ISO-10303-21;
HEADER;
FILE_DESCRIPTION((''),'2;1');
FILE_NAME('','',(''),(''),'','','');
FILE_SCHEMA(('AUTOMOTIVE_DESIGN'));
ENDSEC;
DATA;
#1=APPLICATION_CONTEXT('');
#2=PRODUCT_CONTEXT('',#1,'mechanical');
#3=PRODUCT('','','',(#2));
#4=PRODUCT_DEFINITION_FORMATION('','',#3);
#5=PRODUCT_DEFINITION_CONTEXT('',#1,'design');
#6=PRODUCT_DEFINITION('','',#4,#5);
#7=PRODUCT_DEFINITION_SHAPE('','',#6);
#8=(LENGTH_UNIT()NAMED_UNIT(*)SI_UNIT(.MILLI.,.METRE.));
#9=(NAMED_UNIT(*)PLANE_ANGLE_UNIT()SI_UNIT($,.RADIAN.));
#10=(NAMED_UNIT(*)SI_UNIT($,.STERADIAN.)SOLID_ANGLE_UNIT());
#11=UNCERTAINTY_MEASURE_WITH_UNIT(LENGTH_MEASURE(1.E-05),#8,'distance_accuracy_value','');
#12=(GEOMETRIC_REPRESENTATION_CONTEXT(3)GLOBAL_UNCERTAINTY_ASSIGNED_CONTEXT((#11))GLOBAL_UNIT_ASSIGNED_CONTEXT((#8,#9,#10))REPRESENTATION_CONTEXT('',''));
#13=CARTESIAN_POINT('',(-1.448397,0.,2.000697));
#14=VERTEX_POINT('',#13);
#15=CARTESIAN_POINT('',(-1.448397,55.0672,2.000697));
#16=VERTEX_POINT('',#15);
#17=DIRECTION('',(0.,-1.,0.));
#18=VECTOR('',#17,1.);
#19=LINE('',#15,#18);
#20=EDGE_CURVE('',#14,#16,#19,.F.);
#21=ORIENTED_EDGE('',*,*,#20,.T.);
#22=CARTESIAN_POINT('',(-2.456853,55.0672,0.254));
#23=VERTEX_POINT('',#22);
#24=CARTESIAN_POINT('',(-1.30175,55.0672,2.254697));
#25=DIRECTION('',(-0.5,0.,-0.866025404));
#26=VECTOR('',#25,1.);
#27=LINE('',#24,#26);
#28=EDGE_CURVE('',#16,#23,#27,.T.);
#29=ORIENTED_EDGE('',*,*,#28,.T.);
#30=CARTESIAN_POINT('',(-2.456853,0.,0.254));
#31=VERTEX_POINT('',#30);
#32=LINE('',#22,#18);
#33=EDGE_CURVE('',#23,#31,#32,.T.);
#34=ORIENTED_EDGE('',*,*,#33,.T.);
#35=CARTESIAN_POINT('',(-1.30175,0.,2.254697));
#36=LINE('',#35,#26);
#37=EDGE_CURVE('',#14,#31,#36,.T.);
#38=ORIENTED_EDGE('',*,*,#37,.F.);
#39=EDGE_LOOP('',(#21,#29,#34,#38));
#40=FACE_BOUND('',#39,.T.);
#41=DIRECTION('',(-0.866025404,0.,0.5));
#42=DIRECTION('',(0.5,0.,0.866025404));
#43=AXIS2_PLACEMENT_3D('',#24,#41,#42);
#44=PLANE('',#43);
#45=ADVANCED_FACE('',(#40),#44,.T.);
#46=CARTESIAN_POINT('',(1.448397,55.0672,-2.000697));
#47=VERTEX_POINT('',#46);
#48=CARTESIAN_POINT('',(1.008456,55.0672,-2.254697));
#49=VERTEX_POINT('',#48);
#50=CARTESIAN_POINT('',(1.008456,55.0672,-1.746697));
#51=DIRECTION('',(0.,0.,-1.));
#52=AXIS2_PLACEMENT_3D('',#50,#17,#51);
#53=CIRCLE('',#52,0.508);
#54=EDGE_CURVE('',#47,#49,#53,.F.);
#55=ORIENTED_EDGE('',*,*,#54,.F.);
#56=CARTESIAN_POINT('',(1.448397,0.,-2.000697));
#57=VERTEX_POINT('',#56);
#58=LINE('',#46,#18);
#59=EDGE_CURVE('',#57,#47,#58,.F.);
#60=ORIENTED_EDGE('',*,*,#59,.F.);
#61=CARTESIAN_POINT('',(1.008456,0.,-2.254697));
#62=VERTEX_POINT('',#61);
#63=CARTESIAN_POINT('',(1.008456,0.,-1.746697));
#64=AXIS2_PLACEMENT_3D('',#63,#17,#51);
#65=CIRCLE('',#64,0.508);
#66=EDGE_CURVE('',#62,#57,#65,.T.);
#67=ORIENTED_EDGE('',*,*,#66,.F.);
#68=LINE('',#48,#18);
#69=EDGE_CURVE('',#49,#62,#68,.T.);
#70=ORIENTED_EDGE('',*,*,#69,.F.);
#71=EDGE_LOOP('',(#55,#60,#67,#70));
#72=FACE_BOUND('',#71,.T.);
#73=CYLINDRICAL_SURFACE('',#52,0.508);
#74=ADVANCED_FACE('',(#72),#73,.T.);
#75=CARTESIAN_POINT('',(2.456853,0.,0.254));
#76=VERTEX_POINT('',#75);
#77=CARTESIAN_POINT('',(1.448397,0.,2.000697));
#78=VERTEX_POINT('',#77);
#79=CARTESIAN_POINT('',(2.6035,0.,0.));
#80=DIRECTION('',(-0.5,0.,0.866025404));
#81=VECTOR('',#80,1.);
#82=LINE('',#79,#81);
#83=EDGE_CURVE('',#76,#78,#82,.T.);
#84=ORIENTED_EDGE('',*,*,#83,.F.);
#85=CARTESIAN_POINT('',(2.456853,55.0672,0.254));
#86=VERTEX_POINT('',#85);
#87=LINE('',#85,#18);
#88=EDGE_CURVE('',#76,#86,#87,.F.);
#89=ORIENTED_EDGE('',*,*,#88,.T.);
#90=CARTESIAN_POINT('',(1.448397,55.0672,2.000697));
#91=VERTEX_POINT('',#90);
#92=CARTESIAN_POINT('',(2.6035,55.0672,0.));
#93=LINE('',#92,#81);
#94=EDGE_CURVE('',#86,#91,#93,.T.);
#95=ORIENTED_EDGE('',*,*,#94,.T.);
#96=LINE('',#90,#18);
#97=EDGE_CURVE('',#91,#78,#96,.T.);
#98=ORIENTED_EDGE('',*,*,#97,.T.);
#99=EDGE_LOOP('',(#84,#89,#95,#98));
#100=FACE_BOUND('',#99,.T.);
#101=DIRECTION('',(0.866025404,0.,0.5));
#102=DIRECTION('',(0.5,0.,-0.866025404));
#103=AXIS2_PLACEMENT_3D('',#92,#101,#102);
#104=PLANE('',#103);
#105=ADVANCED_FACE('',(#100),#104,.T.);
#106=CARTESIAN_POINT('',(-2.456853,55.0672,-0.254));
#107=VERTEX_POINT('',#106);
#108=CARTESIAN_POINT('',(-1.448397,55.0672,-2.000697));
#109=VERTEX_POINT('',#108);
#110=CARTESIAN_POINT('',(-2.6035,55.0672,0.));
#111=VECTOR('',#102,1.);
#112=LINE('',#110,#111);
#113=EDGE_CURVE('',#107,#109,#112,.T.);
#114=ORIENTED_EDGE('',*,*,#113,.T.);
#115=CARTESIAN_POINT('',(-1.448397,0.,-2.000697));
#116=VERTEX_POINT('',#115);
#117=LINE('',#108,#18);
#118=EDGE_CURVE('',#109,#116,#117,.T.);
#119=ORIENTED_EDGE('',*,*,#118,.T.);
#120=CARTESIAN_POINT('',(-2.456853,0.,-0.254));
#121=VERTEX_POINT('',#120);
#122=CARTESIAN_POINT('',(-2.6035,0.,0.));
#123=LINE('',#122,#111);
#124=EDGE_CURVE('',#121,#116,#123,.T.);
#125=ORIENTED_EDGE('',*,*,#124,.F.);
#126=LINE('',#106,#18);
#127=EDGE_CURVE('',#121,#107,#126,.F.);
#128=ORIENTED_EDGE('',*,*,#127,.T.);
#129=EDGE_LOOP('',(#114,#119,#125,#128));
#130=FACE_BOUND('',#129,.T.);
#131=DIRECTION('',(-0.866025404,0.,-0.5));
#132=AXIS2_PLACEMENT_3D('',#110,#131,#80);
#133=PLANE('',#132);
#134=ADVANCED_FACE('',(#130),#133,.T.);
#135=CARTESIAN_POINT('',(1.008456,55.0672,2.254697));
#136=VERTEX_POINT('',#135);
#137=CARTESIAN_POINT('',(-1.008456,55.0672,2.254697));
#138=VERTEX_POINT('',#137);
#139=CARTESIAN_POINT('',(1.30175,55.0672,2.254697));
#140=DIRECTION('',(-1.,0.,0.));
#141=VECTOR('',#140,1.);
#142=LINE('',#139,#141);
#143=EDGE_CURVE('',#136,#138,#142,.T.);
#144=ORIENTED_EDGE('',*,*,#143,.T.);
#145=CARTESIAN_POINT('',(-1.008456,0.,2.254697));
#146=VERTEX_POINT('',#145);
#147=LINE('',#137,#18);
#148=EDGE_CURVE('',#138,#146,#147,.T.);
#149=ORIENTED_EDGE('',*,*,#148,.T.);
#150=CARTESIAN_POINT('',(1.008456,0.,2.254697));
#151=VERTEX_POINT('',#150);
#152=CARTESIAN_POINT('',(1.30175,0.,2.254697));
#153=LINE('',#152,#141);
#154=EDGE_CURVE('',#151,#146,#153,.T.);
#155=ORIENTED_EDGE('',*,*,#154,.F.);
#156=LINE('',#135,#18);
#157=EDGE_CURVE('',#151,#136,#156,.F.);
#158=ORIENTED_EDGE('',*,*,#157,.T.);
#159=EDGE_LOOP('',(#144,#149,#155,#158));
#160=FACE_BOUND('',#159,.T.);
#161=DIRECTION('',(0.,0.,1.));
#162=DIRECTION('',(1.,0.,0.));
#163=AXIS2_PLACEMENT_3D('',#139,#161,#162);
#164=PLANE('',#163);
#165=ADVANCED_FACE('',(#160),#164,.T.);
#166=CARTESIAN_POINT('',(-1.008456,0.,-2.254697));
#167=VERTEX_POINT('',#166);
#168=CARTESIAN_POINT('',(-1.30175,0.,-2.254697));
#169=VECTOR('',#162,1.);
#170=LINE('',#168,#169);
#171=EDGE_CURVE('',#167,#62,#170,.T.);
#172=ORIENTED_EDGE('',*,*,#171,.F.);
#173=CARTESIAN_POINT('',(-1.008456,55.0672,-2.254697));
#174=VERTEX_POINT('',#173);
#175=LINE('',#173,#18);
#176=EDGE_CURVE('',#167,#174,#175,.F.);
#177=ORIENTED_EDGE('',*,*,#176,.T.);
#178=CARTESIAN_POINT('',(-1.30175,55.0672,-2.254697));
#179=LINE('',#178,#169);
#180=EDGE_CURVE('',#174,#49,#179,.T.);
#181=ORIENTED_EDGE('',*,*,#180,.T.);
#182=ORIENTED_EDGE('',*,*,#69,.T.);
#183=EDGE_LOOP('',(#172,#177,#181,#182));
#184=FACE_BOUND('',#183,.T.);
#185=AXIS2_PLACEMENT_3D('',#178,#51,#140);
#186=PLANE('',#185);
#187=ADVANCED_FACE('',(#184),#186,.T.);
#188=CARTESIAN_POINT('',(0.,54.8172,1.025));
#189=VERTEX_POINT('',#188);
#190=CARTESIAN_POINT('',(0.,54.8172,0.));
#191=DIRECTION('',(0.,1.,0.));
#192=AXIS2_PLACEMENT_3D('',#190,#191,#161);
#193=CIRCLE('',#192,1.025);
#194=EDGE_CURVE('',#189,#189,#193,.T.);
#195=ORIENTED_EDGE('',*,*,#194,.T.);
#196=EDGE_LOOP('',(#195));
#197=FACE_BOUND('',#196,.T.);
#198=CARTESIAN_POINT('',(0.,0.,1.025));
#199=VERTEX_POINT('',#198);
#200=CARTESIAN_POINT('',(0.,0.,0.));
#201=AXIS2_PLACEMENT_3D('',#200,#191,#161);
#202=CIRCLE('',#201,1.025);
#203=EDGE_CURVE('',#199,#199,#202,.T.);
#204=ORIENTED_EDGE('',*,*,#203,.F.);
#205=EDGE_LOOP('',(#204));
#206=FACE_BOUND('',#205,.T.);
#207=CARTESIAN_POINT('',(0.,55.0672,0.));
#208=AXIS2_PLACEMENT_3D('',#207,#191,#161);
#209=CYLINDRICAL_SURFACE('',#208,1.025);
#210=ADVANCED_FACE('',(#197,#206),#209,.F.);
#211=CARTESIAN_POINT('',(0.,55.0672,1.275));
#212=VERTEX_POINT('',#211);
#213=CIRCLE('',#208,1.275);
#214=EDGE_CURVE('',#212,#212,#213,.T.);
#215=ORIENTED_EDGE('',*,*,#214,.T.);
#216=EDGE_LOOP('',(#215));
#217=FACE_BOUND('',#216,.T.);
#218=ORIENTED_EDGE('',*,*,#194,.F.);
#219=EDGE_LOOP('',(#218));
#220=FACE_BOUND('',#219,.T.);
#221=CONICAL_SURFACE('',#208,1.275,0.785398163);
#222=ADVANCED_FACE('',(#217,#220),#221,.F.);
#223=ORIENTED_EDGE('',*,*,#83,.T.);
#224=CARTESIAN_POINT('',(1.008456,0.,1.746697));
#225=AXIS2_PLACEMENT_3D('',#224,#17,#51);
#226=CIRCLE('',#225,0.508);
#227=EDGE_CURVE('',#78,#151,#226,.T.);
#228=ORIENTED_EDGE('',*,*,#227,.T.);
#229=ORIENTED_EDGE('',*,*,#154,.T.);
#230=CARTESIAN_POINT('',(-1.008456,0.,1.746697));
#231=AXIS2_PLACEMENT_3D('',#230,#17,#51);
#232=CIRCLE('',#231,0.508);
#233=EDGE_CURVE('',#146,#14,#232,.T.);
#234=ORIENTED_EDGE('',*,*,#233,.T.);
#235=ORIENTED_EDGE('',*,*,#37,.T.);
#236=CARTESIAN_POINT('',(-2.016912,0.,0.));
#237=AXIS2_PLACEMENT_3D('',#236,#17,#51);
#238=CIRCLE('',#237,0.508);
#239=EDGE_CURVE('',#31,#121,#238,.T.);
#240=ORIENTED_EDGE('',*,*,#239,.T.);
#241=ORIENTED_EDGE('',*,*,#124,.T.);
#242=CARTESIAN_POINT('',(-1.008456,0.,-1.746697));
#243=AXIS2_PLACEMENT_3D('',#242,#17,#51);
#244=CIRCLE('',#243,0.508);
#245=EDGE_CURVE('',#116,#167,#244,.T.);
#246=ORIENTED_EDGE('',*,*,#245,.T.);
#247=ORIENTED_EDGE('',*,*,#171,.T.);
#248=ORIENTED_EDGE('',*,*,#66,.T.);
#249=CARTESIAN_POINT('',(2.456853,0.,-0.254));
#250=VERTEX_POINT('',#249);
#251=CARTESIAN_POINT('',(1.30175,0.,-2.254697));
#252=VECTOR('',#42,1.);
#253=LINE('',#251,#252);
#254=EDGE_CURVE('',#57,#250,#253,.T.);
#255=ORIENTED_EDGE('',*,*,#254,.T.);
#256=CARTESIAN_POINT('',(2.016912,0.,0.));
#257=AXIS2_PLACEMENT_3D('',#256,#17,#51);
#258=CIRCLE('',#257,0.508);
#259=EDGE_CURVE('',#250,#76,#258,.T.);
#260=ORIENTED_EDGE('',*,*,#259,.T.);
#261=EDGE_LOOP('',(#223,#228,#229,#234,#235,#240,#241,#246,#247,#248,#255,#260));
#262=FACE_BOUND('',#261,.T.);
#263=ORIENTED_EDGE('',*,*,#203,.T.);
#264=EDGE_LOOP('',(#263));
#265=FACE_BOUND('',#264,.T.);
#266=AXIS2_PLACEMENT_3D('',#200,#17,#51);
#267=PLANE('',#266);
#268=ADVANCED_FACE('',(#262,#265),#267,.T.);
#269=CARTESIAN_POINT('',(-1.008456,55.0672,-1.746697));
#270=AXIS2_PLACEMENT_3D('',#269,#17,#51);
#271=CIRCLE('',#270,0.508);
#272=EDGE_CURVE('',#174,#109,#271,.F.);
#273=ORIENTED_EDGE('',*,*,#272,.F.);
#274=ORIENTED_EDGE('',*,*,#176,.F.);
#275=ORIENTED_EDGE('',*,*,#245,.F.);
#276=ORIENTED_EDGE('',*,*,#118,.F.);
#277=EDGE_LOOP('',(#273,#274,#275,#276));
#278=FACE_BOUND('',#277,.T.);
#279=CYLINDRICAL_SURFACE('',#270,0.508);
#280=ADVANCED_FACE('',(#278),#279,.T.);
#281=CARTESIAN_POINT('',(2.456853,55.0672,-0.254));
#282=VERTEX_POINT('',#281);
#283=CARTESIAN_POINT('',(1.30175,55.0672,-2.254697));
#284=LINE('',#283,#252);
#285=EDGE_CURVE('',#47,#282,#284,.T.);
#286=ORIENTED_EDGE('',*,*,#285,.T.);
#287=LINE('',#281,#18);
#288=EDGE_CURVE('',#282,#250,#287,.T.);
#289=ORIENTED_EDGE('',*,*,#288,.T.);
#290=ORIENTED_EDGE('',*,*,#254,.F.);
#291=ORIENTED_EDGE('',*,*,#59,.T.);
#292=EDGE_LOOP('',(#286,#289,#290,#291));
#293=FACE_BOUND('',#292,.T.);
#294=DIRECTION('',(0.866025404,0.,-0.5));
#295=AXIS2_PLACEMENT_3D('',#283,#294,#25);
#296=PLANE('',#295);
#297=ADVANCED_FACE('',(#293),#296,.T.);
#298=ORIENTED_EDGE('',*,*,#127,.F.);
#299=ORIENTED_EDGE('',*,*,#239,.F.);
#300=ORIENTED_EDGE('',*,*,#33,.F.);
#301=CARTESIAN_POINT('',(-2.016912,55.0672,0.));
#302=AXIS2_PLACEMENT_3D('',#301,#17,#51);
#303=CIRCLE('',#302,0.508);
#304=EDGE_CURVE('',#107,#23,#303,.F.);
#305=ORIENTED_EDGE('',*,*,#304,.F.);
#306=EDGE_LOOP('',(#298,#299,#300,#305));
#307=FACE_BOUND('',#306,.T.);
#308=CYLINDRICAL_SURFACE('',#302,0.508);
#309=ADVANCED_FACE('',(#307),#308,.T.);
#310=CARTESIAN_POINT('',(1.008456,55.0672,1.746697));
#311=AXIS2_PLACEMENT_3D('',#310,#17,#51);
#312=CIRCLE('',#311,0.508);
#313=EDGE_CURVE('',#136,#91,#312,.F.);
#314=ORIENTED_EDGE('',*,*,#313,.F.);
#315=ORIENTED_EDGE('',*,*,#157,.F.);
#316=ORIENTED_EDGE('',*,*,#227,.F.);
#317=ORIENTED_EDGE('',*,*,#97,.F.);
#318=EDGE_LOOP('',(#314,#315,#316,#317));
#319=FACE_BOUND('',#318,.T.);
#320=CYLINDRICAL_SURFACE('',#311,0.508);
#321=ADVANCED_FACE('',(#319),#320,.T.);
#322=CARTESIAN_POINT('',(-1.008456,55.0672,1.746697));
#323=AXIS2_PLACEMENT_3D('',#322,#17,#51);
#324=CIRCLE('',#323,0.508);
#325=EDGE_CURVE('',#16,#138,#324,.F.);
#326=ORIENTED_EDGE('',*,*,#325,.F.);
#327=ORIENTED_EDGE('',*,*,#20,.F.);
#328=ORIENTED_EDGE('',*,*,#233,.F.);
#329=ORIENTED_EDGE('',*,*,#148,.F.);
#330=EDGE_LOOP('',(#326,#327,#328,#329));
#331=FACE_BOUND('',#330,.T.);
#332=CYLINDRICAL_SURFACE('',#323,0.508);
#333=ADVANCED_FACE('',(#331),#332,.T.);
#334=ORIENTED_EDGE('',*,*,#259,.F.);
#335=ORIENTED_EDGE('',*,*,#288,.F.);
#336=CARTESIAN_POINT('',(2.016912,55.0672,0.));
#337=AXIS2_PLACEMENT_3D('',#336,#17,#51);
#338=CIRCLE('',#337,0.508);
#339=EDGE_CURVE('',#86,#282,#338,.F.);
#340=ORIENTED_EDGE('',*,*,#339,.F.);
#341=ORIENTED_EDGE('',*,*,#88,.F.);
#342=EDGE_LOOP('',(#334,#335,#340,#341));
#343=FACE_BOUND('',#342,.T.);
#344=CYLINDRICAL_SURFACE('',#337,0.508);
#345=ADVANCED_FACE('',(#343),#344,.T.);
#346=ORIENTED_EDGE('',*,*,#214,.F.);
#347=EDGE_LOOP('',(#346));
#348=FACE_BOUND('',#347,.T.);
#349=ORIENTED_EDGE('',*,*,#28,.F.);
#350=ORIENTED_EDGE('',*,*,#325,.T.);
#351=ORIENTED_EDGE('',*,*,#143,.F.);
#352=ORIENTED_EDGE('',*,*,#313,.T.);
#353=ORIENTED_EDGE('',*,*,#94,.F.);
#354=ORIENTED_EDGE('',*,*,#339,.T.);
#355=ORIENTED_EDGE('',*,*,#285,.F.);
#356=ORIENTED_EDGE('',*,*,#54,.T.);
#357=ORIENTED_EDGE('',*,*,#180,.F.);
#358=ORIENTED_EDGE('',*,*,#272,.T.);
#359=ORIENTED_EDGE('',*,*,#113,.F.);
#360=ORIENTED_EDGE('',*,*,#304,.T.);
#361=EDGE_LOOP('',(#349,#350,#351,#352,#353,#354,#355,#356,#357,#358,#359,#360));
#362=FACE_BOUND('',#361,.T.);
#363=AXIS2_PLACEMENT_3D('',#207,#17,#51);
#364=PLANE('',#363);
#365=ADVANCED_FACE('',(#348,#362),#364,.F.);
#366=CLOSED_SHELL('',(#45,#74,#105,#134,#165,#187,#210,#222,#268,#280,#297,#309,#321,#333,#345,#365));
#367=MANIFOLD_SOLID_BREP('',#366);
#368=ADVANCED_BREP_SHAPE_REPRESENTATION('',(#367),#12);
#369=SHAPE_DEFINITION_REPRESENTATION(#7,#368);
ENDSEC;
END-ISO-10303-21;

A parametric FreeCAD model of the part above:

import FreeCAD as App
import Part
import Sketcher
Q = App.Units.Quantity


def edges_at(feature, points):
    """Names of the edges that pass closest to the given points."""
    edges = feature.Shape.Edges
    near = lambda p: min(range(len(edges)), key=lambda i: edges[i].distToShape(Part.Vertex(*p))[0])
    return sorted({f"Edge{near(p) + 1}" for p in points})

doc = App.newDocument("Part")
body = doc.addObject("PartDesign::Body", "Body")

# Sketch on XZ plane
sketch1 = body.newObject("Sketcher::SketchObject", "Sketch")
sketch1.AttachmentSupport = (doc.getObject("XZ_Plane"), [""])
sketch1.MapMode = "FlatFace"
sketch1.addGeometry([
    Part.LineSegment(App.Vector(-1.3, -2.3, 0), App.Vector(-2.6, 0, 0)),  # 0
    Part.LineSegment(App.Vector(-2.6, 0, 0), App.Vector(-1.3, 2.3, 0)),  # 1
    Part.LineSegment(App.Vector(-1.3, 2.3, 0), App.Vector(1.3, 2.3, 0)),  # 2
    Part.LineSegment(App.Vector(1.3, 2.3, 0), App.Vector(2.6, 0, 0)),  # 3
    Part.LineSegment(App.Vector(2.6, 0, 0), App.Vector(1.3, -2.3, 0)),  # 4
    Part.LineSegment(App.Vector(1.3, -2.3, 0), App.Vector(-1.3, -2.3, 0)),  # 5
], False)
sketch1.addConstraint([
    Sketcher.Constraint("Coincident", 0, 2, 1, 1),
    Sketcher.Constraint("Coincident", 1, 2, 2, 1),
    Sketcher.Constraint("Coincident", 2, 2, 3, 1),
    Sketcher.Constraint("Coincident", 3, 2, 4, 1),
    Sketcher.Constraint("Coincident", 4, 2, 5, 1),
    Sketcher.Constraint("Coincident", 5, 2, 0, 1),
    Sketcher.Constraint("Horizontal", 2),
    Sketcher.Constraint("Horizontal", 5),
    Sketcher.Constraint("Symmetric", 0, 2, 3, 2, -1, 1),
    Sketcher.Constraint("Symmetric", 1, 2, 4, 2, -1, 1),
    Sketcher.Constraint("PointOnObject", 0, 2, -1),
    Sketcher.Constraint("Parallel", 0, 3),
    Sketcher.Constraint("Vertical", 2, 2, 4, 2),
    Sketcher.Constraint("Angle", 0, Q("120 deg")),
    Sketcher.Constraint("DistanceX", 2, 1, 2, 2, Q("0.1025 in")),
    Sketcher.Constraint("DistanceX", 0, 2, 3, 2, Q("0.205 in")),
])
pad1 = body.newObject("PartDesign::Pad", "Pad")
pad1.Profile = sketch1
pad1.Length = Q("2.168 in")
pad1.Reversed = True
doc.recompute()

fillet = body.newObject("PartDesign::Fillet", "Fillet")
fillet.Base = (pad1, edges_at(pad1, [
    (-2.603, 27.534, 0),
    (-1.302, 27.534, 2.255),
    (1.302, 27.534, 2.255),
    (2.603, 27.534, 0),
    (1.302, 27.534, -2.255),
    (-1.302, 27.534, -2.255),
]))
fillet.Radius = Q("0.02 in")

# Sketch on XZ plane
sketch2 = body.newObject("Sketcher::SketchObject", "Sketch001")
sketch2.AttachmentSupport = (doc.getObject("XZ_Plane"), [""])
sketch2.MapMode = "FlatFace"
sketch2.AttachmentOffset = App.Placement(App.Vector(0, 0, -2.168 * 25.4), App.Rotation())
sketch2.addGeometry(Part.Circle(App.Vector(0, 0, 0), App.Vector(0, 0, 1), 1), False)
sketch2.addConstraint([
    Sketcher.Constraint("Coincident", 0, 3, -1, 1),
    Sketcher.Constraint("Diameter", 0, 2.05),
])
doc.recompute()
hole = body.newObject("PartDesign::Hole", "Hole")
hole.Profile = sketch2
hole.ThreadType = "None"
hole.Diameter = 2.05
hole.DepthType = "ThroughAll"
hole.HoleCutType = "Countersink"
hole.HoleCutDiameter = 2.55
hole.HoleCutCountersinkAngle = 90
hole.Reversed = True

doc.recompute()
